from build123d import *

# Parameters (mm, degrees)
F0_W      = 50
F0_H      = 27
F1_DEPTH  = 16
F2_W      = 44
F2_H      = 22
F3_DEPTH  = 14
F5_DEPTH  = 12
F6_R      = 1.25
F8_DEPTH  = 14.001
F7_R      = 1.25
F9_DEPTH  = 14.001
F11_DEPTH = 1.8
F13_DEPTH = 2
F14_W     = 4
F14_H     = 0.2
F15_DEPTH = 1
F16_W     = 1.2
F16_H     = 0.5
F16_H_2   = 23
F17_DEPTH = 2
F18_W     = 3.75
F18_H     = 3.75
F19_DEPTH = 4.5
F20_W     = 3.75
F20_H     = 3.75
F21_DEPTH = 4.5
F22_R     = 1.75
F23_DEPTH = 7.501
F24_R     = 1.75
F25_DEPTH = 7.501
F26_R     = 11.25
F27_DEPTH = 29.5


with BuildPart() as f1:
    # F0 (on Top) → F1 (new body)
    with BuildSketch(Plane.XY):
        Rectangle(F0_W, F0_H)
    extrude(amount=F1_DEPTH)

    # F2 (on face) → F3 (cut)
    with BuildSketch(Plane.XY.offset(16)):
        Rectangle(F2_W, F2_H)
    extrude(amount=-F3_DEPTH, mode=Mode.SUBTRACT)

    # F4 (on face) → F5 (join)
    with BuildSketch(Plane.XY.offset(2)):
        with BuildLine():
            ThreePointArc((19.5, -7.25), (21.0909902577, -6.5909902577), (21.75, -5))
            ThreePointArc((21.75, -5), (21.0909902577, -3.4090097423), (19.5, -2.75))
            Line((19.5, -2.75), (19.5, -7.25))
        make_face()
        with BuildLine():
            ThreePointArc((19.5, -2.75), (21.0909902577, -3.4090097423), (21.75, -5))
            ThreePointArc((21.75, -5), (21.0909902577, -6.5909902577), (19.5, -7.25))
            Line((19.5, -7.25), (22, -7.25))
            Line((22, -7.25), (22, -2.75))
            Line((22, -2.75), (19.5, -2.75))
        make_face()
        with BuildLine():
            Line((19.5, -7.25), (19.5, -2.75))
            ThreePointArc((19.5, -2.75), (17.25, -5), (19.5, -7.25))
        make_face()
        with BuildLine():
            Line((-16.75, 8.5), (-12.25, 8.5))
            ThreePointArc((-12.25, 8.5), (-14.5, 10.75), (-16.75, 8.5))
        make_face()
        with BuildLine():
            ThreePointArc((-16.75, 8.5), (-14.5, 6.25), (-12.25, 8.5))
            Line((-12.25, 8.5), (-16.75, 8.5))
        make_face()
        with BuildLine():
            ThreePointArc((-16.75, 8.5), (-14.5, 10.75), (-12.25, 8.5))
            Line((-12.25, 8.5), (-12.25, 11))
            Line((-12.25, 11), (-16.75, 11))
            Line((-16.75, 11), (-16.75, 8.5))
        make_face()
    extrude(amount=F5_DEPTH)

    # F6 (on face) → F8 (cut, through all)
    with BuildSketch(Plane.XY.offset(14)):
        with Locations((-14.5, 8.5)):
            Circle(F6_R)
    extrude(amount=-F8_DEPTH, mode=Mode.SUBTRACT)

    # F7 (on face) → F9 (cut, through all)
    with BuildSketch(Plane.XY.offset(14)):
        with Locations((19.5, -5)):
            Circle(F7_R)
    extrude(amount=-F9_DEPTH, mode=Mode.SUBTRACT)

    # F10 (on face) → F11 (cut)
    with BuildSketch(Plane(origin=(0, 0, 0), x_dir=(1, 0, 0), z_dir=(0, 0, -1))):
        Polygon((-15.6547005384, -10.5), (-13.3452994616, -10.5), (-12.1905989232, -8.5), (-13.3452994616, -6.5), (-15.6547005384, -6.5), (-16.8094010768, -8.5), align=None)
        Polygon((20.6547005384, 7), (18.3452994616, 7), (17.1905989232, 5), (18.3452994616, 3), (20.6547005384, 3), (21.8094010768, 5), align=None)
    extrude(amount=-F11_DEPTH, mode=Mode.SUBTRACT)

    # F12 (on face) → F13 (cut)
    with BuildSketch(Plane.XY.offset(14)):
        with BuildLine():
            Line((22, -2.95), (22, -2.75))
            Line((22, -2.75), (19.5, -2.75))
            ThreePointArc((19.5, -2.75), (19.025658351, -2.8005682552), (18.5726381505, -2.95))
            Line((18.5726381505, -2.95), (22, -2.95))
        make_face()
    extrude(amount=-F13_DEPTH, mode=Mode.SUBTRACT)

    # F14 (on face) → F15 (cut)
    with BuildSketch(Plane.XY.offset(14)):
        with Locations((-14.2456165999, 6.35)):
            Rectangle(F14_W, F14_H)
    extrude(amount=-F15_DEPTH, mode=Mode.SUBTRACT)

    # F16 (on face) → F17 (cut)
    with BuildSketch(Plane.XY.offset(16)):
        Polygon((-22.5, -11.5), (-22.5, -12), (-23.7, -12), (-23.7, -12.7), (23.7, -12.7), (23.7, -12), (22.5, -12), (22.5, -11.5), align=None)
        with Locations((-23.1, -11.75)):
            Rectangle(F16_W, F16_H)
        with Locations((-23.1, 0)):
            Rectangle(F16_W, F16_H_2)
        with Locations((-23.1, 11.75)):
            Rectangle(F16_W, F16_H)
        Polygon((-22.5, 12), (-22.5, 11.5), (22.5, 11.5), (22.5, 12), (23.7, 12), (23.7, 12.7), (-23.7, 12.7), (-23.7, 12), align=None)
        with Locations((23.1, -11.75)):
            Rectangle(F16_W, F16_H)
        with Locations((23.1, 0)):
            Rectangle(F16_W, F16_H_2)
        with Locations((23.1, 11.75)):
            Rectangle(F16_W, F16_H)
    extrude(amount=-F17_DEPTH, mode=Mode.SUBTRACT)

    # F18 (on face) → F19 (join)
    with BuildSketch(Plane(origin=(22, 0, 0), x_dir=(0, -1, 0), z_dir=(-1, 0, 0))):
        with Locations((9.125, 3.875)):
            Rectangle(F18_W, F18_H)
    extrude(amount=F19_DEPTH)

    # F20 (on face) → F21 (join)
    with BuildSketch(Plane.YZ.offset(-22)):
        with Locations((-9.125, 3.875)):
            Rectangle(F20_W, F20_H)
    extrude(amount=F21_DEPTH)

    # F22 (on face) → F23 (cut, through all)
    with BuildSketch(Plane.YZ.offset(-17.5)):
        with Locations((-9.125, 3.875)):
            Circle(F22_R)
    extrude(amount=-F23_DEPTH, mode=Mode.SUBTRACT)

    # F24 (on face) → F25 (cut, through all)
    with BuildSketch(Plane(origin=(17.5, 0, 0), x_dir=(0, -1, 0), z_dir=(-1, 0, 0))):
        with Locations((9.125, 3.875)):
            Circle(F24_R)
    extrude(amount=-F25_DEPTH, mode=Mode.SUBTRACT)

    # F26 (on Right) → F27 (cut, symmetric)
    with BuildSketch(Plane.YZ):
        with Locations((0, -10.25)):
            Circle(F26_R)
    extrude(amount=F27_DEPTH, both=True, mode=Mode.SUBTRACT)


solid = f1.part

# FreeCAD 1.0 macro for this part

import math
import FreeCAD as App
import Part
import Sketcher
Q = App.Units.Quantity


def add_polygon(sketch, points):
    """Adds a closed chain of lines whose ends are joined by coincident constraints."""
    first, n = sketch.GeometryCount, len(points)
    for a, b in zip(points, points[1:] + points[:1]):
        sketch.addGeometry(Part.LineSegment(App.Vector(*a, 0), App.Vector(*b, 0)), False)
    for i in range(n):
        sketch.addConstraint(Sketcher.Constraint("Coincident", first + i, 2, first + (i + 1) % n, 1))

doc = App.newDocument("Part")
body = doc.addObject("PartDesign::Body", "Body")

sketch1 = body.newObject("Sketcher::SketchObject", "Sketch")
sketch1.AttachmentSupport = (doc.getObject("XY_Plane"), [""])
sketch1.MapMode = "FlatFace"
add_polygon(sketch1, [(-25, 13.5), (-25, -13.5), (25, -13.5), (25, 13.5)])
sketch1.addConstraint([
    Sketcher.Constraint("Vertical", 0),
    Sketcher.Constraint("Horizontal", 1),
    Sketcher.Constraint("Vertical", 2),
    Sketcher.Constraint("Horizontal", 3),
    Sketcher.Constraint("Symmetric", 0, 2, 2, 2, -1, 1),
    Sketcher.Constraint("DistanceX", 1, 1, 1, 2, 50.0),
    Sketcher.Constraint("DistanceY", 0, 2, 0, 1, 27.0),
])
pad1 = body.newObject("PartDesign::Pad", "Pad")
pad1.Profile = sketch1
pad1.Length = 16

sketch2 = body.newObject("Sketcher::SketchObject", "Sketch001")
sketch2.AttachmentSupport = (doc.getObject("XY_Plane"), [""])
sketch2.MapMode = "FlatFace"
sketch2.AttachmentOffset = App.Placement(App.Vector(0, 0, 16), App.Rotation())
add_polygon(sketch2, [(-22, 11), (-22, -11), (22, -11), (22, 11)])
sketch2.addConstraint([
    Sketcher.Constraint("Vertical", 0),
    Sketcher.Constraint("Horizontal", 1),
    Sketcher.Constraint("Vertical", 2),
    Sketcher.Constraint("Horizontal", 3),
    Sketcher.Constraint("Symmetric", 0, 2, 2, 2, -1, 1),
    Sketcher.Constraint("DistanceX", 1, 1, 1, 2, 44.0),
    Sketcher.Constraint("DistanceY", 0, 2, 0, 1, 22.0),
])
pocket1 = body.newObject("PartDesign::Pocket", "Pocket")
pocket1.Profile = sketch2
pocket1.Length = 14

sketch3 = body.newObject("Sketcher::SketchObject", "Sketch002")
sketch3.AttachmentSupport = (doc.getObject("XY_Plane"), [""])
sketch3.MapMode = "FlatFace"
sketch3.AttachmentOffset = App.Placement(App.Vector(0, 0, 2), App.Rotation())
sketch3.addGeometry([
    Part.LineSegment(App.Vector(19.5, -7.25, 0), App.Vector(22, -7.25, 0)),
    Part.LineSegment(App.Vector(22, -7.25, 0), App.Vector(22, -2.75, 0)),
    Part.LineSegment(App.Vector(22, -2.75, 0), App.Vector(19.5, -2.75, 0)),
    Part.ArcOfCircle(Part.Circle(App.Vector(19.5, -5, 0), App.Vector(0, 0, 1), 2.25), math.radians(90), math.radians(270)),
    Part.ArcOfCircle(Part.Circle(App.Vector(-14.5, 8.5, 0), App.Vector(0, 0, 1), 2.25), math.radians(180), math.radians(360)),
    Part.LineSegment(App.Vector(-12.25, 8.5, 0), App.Vector(-12.25, 11, 0)),
    Part.LineSegment(App.Vector(-12.25, 11, 0), App.Vector(-16.75, 11, 0)),
    Part.LineSegment(App.Vector(-16.75, 11, 0), App.Vector(-16.75, 8.5, 0)),
], False)
sketch3.addConstraint([
    Sketcher.Constraint("Coincident", 0, 2, 1, 1),
    Sketcher.Constraint("Coincident", 1, 2, 2, 1),
    Sketcher.Constraint("Tangent", 2, 2, 3, 1),
    Sketcher.Constraint("Tangent", 3, 2, 0, 1),
    Sketcher.Constraint("Tangent", 4, 2, 5, 1),
    Sketcher.Constraint("Coincident", 5, 2, 6, 1),
    Sketcher.Constraint("Coincident", 6, 2, 7, 1),
    Sketcher.Constraint("Tangent", 7, 2, 4, 1),
    Sketcher.Constraint("Horizontal", 0),
    Sketcher.Constraint("Vertical", 1),
    Sketcher.Constraint("Horizontal", 2),
    Sketcher.Constraint("Vertical", 5),
    Sketcher.Constraint("Horizontal", 6),
    Sketcher.Constraint("Vertical", 7),
    Sketcher.Constraint("Equal", 3, 4),
    Sketcher.Constraint("Equal", 2, 5),
    Sketcher.Constraint("Radius", 3, 2.25),
    Sketcher.Constraint("DistanceX", 0, 1, 0, 2, 2.5),
    Sketcher.Constraint("DistanceY", 3, 3, -1, 1, 5.0),
    Sketcher.Constraint("DistanceX", -1, 1, 0, 2, 22.0),
    Sketcher.Constraint("DistanceY", -1, 1, 5, 2, 11.0),
    Sketcher.Constraint("DistanceX", 4, 3, 3, 3, 34.0),
])
pad2 = body.newObject("PartDesign::Pad", "Pad001")
pad2.Profile = sketch3
pad2.Length = 12

sketch4 = body.newObject("Sketcher::SketchObject", "Sketch003")
sketch4.AttachmentSupport = (doc.getObject("XY_Plane"), [""])
sketch4.MapMode = "FlatFace"
sketch4.AttachmentOffset = App.Placement(App.Vector(0, 0, 14), App.Rotation())
sketch4.addGeometry(Part.Circle(App.Vector(-14.5, 8.5, 0), App.Vector(0, 0, 1), 1.25), False)
sketch4.addConstraint([
    Sketcher.Constraint("Diameter", 0, 2.5),
    Sketcher.Constraint("DistanceX", 0, 3, -1, 1, 14.5),
    Sketcher.Constraint("DistanceY", -1, 1, 0, 3, 8.5),
])
pocket2 = body.newObject("PartDesign::Pocket", "Pocket001")
pocket2.Profile = sketch4
pocket2.Type = "ThroughAll"

sketch5 = body.newObject("Sketcher::SketchObject", "Sketch004")
sketch5.AttachmentSupport = (doc.getObject("XY_Plane"), [""])
sketch5.MapMode = "FlatFace"
sketch5.AttachmentOffset = App.Placement(App.Vector(0, 0, 14), App.Rotation())
sketch5.addGeometry(Part.Circle(App.Vector(19.5, -5, 0), App.Vector(0, 0, 1), 1.25), False)
sketch5.addConstraint([
    Sketcher.Constraint("Diameter", 0, 2.5),
    Sketcher.Constraint("DistanceY", 0, 3, -1, 1, 5.0),
    Sketcher.Constraint("DistanceX", -1, 1, 0, 3, 19.5),
])
pocket3 = body.newObject("PartDesign::Pocket", "Pocket002")
pocket3.Profile = sketch5
pocket3.Type = "ThroughAll"

sketch6 = body.newObject("Sketcher::SketchObject", "Sketch005")
sketch6.AttachmentSupport = (doc.getObject("XY_Plane"), [""])
sketch6.MapMode = "FlatFace"
add_polygon(sketch6, [(-15.654701, 10.5), (-13.345299, 10.5), (-12.190599, 8.5), (-13.345299, 6.5), (-15.654701, 6.5), (-16.809401, 8.5)])
add_polygon(sketch6, [(20.654701, -7), (18.345299, -7), (17.190599, -5), (18.345299, -3), (20.654701, -3), (21.809401, -5)])
sketch6.addConstraint([
    Sketcher.Constraint("Horizontal", 0),
    Sketcher.Constraint("Horizontal", 3),
    Sketcher.Constraint("Horizontal", 6),
    Sketcher.Constraint("Horizontal", 9),
    Sketcher.Constraint("Parallel", 1, 4),
    Sketcher.Constraint("Parallel", 2, 5),
    Sketcher.Constraint("Parallel", 4, 7),
    Sketcher.Constraint("Parallel", 5, 8),
    Sketcher.Constraint("Parallel", 7, 10),
    Sketcher.Constraint("Parallel", 8, 11),
    Sketcher.Constraint("Horizontal", 1, 2, 4, 2),
    Sketcher.Constraint("Horizontal", 7, 2, 10, 2),
    Sketcher.Constraint("Vertical", 0, 2, 2, 2),
    Sketcher.Constraint("Vertical", 3, 2, 5, 2),
    Sketcher.Constraint("Vertical", 6, 2, 8, 2),
    Sketcher.Constraint("Equal", 3, 6),
    Sketcher.Constraint("Equal", 5, 7),
    Sketcher.Constraint("Angle", 1, Q("-60 deg")),
    Sketcher.Constraint("DistanceY", 6, 2, -1, 1, 7.0),
    Sketcher.Constraint("DistanceY", 7, 2, -1, 1, 5.0),
    Sketcher.Constraint("DistanceX", 3, 2, 6, 2, 34.0),
    Sketcher.Constraint("DistanceY", -1, 1, 0, 2, 10.5),
    Sketcher.Constraint("DistanceX", 0, 1, 0, 2, 2.309401),
    Sketcher.Constraint("DistanceX", 0, 2, -1, 1, 13.345299),
])
pocket4 = body.newObject("PartDesign::Pocket", "Pocket003")
pocket4.Profile = sketch6
pocket4.Length = 1.8
pocket4.Reversed = True

sketch7 = body.newObject("Sketcher::SketchObject", "Sketch006")
sketch7.AttachmentSupport = (doc.getObject("XY_Plane"), [""])
sketch7.MapMode = "FlatFace"
sketch7.AttachmentOffset = App.Placement(App.Vector(0, 0, 14), App.Rotation())
sketch7.addGeometry([
    Part.LineSegment(App.Vector(22, -2.95, 0), App.Vector(22, -2.75, 0)),
    Part.LineSegment(App.Vector(22, -2.75, 0), App.Vector(19.5, -2.75, 0)),
    Part.ArcOfCircle(Part.Circle(App.Vector(19.5, -5, 0), App.Vector(0, 0, 1), 2.25), math.radians(90), math.radians(114.340647)),
    Part.LineSegment(App.Vector(18.572638, -2.95, 0), App.Vector(22, -2.95, 0)),
], False)
sketch7.addConstraint([
    Sketcher.Constraint("Coincident", 0, 2, 1, 1),
    Sketcher.Constraint("Tangent", 1, 2, 2, 1),
    Sketcher.Constraint("Coincident", 2, 2, 3, 1),
    Sketcher.Constraint("Coincident", 3, 2, 0, 1),
    Sketcher.Constraint("Vertical", 0),
    Sketcher.Constraint("Horizontal", 1),
    Sketcher.Constraint("Horizontal", 3),
    Sketcher.Constraint("Radius", 2, 2.25),
    Sketcher.Constraint("DistanceX", 1, 2, 1, 1, 2.5),
    Sketcher.Constraint("DistanceY", 0, 1, 0, 2, 0.2),
    Sketcher.Constraint("DistanceY", 2, 3, -1, 1, 5.0),
    Sketcher.Constraint("DistanceX", -1, 1, 0, 2, 22.0),
])
pocket5 = body.newObject("PartDesign::Pocket", "Pocket004")
pocket5.Profile = sketch7
pocket5.Length = 2

sketch8 = body.newObject("Sketcher::SketchObject", "Sketch007")
sketch8.AttachmentSupport = (doc.getObject("XY_Plane"), [""])
sketch8.MapMode = "FlatFace"
sketch8.AttachmentOffset = App.Placement(App.Vector(0, 0, 14), App.Rotation())
add_polygon(sketch8, [(-16.245617, 6.45), (-16.245617, 6.25), (-12.245617, 6.25), (-12.245617, 6.45)])
sketch8.addConstraint([
    Sketcher.Constraint("Vertical", 0),
    Sketcher.Constraint("Horizontal", 1),
    Sketcher.Constraint("Vertical", 2),
    Sketcher.Constraint("Horizontal", 3),
    Sketcher.Constraint("DistanceX", 1, 1, 1, 2, 4.0),
    Sketcher.Constraint("DistanceY", 0, 2, 0, 1, 0.2),
    Sketcher.Constraint("DistanceY", -1, 1, 0, 2, 6.25),
    Sketcher.Constraint("DistanceX", 0, 2, -1, 1, 16.245617),
])
pocket6 = body.newObject("PartDesign::Pocket", "Pocket005")
pocket6.Profile = sketch8
pocket6.Length = 1

sketch9 = body.newObject("Sketcher::SketchObject", "Sketch008")
sketch9.AttachmentSupport = (doc.getObject("XY_Plane"), [""])
sketch9.MapMode = "FlatFace"
sketch9.AttachmentOffset = App.Placement(App.Vector(0, 0, 16), App.Rotation())
add_polygon(sketch9, [(23.7, -12.7), (23.7, 12.7), (-23.7, 12.7), (-23.7, -12.7)])
add_polygon(sketch9, [(22.5, 11.5), (22.5, -11.5), (-22.5, -11.5), (-22.5, 11.5)])
sketch9.addConstraint([
    Sketcher.Constraint("Vertical", 0),
    Sketcher.Constraint("Horizontal", 1),
    Sketcher.Constraint("Vertical", 2),
    Sketcher.Constraint("Horizontal", 3),
    Sketcher.Constraint("Vertical", 4),
    Sketcher.Constraint("Horizontal", 5),
    Sketcher.Constraint("Vertical", 6),
    Sketcher.Constraint("Horizontal", 7),
    Sketcher.Constraint("Symmetric", 0, 2, 2, 2, -1, 1),
    Sketcher.Constraint("Symmetric", 4, 2, 6, 2, -1, 1),
    Sketcher.Constraint("DistanceX", 5, 2, 5, 1, 45.0),
    Sketcher.Constraint("DistanceY", 4, 2, 4, 1, 23.0),
    Sketcher.Constraint("DistanceX", 1, 2, 1, 1, 47.4),
    Sketcher.Constraint("DistanceY", 0, 1, 0, 2, 25.4),
])
pocket7 = body.newObject("PartDesign::Pocket", "Pocket006")
pocket7.Profile = sketch9
pocket7.Length = 2

sketch10 = body.newObject("Sketcher::SketchObject", "Sketch009")
sketch10.AttachmentSupport = (doc.getObject("YZ_Plane"), [""])
sketch10.MapMode = "FlatFace"
sketch10.AttachmentOffset = App.Placement(App.Vector(0, 0, 22), App.Rotation())
add_polygon(sketch10, [(-7.25, 5.75), (-7.25, 2), (-11, 2), (-11, 5.75)])
sketch10.addConstraint([
    Sketcher.Constraint("Vertical", 0),
    Sketcher.Constraint("Horizontal", 1),
    Sketcher.Constraint("Vertical", 2),
    Sketcher.Constraint("Horizontal", 3),
    Sketcher.Constraint("Equal", 3, 0),
    Sketcher.Constraint("DistanceY", -1, 1, 0, 2, 2.0),
    Sketcher.Constraint("DistanceX", 1, 2, -1, 1, 11.0),
    Sketcher.Constraint("DistanceX", 1, 2, 1, 1, 3.75),
])
pad3 = body.newObject("PartDesign::Pad", "Pad002")
pad3.Profile = sketch10
pad3.Length = 4.5
pad3.Reversed = True

sketch11 = body.newObject("Sketcher::SketchObject", "Sketch010")
sketch11.AttachmentSupport = (doc.getObject("YZ_Plane"), [""])
sketch11.MapMode = "FlatFace"
sketch11.AttachmentOffset = App.Placement(App.Vector(0, 0, -22), App.Rotation())
add_polygon(sketch11, [(-11, 5.75), (-11, 2), (-7.25, 2), (-7.25, 5.75)])
sketch11.addConstraint([
    Sketcher.Constraint("Vertical", 0),
    Sketcher.Constraint("Horizontal", 1),
    Sketcher.Constraint("Vertical", 2),
    Sketcher.Constraint("Horizontal", 3),
    Sketcher.Constraint("Equal", 3, 0),
    Sketcher.Constraint("DistanceX", 0, 2, -1, 1, 11.0),
    Sketcher.Constraint("DistanceY", -1, 1, 0, 2, 2.0),
    Sketcher.Constraint("DistanceX", 1, 1, 1, 2, 3.75),
])
pad4 = body.newObject("PartDesign::Pad", "Pad003")
pad4.Profile = sketch11
pad4.Length = 4.5

sketch12 = body.newObject("Sketcher::SketchObject", "Sketch011")
sketch12.AttachmentSupport = (doc.getObject("YZ_Plane"), [""])
sketch12.MapMode = "FlatFace"
sketch12.AttachmentOffset = App.Placement(App.Vector(0, 0, -17.5), App.Rotation())
sketch12.addGeometry(Part.Circle(App.Vector(-9.125, 3.875, 0), App.Vector(0, 0, 1), 1.75), False)
sketch12.addConstraint([
    Sketcher.Constraint("Diameter", 0, 3.5),
    Sketcher.Constraint("DistanceX", 0, 3, -1, 1, 9.125),
    Sketcher.Constraint("DistanceY", -1, 1, 0, 3, 3.875),
])
pocket8 = body.newObject("PartDesign::Pocket", "Pocket007")
pocket8.Profile = sketch12
pocket8.Type = "ThroughAll"

sketch13 = body.newObject("Sketcher::SketchObject", "Sketch012")
sketch13.AttachmentSupport = (doc.getObject("YZ_Plane"), [""])
sketch13.MapMode = "FlatFace"
sketch13.AttachmentOffset = App.Placement(App.Vector(0, 0, 17.5), App.Rotation())
sketch13.addGeometry(Part.Circle(App.Vector(-9.125, 3.875, 0), App.Vector(0, 0, 1), 1.75), False)
sketch13.addConstraint([
    Sketcher.Constraint("Diameter", 0, 3.5),
    Sketcher.Constraint("DistanceX", 0, 3, -1, 1, 9.125),
    Sketcher.Constraint("DistanceY", -1, 1, 0, 3, 3.875),
])
pocket9 = body.newObject("PartDesign::Pocket", "Pocket008")
pocket9.Profile = sketch13
pocket9.Type = "ThroughAll"
pocket9.Reversed = True

sketch14 = body.newObject("Sketcher::SketchObject", "Sketch013")
sketch14.AttachmentSupport = (doc.getObject("YZ_Plane"), [""])
sketch14.MapMode = "FlatFace"
sketch14.addGeometry(Part.Circle(App.Vector(0, -10.25, 0), App.Vector(0, 0, 1), 11.25), False)
sketch14.addConstraint([
    Sketcher.Constraint("PointOnObject", 0, 3, -2),
    Sketcher.Constraint("Diameter", 0, 22.5),
    Sketcher.Constraint("DistanceY", 0, 3, -1, 1, 10.25),
])
pocket10 = body.newObject("PartDesign::Pocket", "Pocket009")
pocket10.Profile = sketch14
pocket10.Length = 59
pocket10.Midplane = True

doc.recompute()
